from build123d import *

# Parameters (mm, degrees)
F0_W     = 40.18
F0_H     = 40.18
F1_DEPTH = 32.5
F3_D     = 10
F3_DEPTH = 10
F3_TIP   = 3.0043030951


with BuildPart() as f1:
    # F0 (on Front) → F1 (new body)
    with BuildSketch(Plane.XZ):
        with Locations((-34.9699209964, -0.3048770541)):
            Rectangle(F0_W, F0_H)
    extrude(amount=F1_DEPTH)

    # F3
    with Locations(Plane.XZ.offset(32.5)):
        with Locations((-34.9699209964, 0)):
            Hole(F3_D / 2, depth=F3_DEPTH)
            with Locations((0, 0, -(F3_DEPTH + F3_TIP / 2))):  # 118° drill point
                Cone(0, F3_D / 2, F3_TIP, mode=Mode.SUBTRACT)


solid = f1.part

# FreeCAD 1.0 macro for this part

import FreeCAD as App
import Part
import Sketcher


def add_polygon(sketch, points):
    """Adds a closed chain of lines whose ends are joined by coincident constraints."""
    first, n = sketch.GeometryCount, len(points)
    for a, b in zip(points, points[1:] + points[:1]):
        sketch.addGeometry(Part.LineSegment(App.Vector(*a, 0), App.Vector(*b, 0)), False)
    for i in range(n):
        sketch.addConstraint(Sketcher.Constraint("Coincident", first + i, 2, first + (i + 1) % n, 1))

doc = App.newDocument("Part")
body = doc.addObject("PartDesign::Body", "Body")

sketch1 = body.newObject("Sketcher::SketchObject", "Sketch")
sketch1.AttachmentSupport = (doc.getObject("XZ_Plane"), [""])
sketch1.MapMode = "FlatFace"
add_polygon(sketch1, [(-55.059921, 19.785123), (-55.059921, -20.394877), (-14.879921, -20.394877), (-14.879921, 19.785123)])
sketch1.addConstraint(Sketcher.Constraint("Vertical", 0))
sketch1.addConstraint(Sketcher.Constraint("Horizontal", 1))
sketch1.addConstraint(Sketcher.Constraint("Vertical", 2))
sketch1.addConstraint(Sketcher.Constraint("Horizontal", 3))
sketch1.addConstraint(Sketcher.Constraint("Equal", 3, 0))
sketch1.addConstraint(Sketcher.Constraint("DistanceX", 1, 1, 1, 2, 40.18))
sketch1.addConstraint(Sketcher.Constraint("DistanceX", 0, 2, -1, 1, 55.059921))
sketch1.addConstraint(Sketcher.Constraint("DistanceY", 0, 2, -1, 1, 20.394877))
pad1 = body.newObject("PartDesign::Pad", "Pad")
pad1.Profile = sketch1
pad1.Length = 32.5

sketch2 = body.newObject("Sketcher::SketchObject", "Sketch001")
sketch2.AttachmentSupport = (doc.getObject("XZ_Plane"), [""])
sketch2.MapMode = "FlatFace"
sketch2.AttachmentOffset = App.Placement(App.Vector(0, 0, 32.5), App.Rotation())
sketch2.addGeometry(Part.Circle(App.Vector(-34.969921, 0, 0), App.Vector(0, 0, 1), 5), False)
sketch2.addConstraint(Sketcher.Constraint("PointOnObject", 0, 3, -1))
sketch2.addConstraint(Sketcher.Constraint("Diameter", 0, 10.0))
sketch2.addConstraint(Sketcher.Constraint("DistanceX", 0, 3, -1, 1, 34.969921))
doc.recompute()
hole = body.newObject("PartDesign::Hole", "Hole")
hole.Profile = sketch2
hole.ThreadType = "None"
hole.Diameter = 10
hole.DepthType = "Dimension"
hole.Depth = 10
hole.DrillPoint = "Angled"
hole.DrillPointAngle = 118

doc.recompute()
